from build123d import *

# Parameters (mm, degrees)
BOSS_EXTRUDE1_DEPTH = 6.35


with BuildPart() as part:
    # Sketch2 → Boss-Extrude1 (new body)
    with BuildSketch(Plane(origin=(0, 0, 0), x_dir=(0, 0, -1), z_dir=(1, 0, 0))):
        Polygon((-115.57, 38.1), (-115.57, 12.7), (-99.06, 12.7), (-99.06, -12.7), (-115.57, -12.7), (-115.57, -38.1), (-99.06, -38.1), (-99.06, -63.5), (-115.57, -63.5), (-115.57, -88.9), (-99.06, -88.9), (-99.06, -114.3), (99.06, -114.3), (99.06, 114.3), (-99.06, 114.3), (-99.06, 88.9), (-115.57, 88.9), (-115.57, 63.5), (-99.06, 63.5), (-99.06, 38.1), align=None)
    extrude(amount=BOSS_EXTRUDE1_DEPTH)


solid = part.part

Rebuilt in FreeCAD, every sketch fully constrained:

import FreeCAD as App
import Part
import Sketcher
from FreeCAD import Vector
Q = App.Units.Quantity

doc = App.newDocument("Part")
params = doc.addObject("Spreadsheet::Sheet", "Params")
for row, (alias, value) in enumerate([
    ("sketch1_width", "1 in"),
    ("sketch1_height", "7.8 in"),
    ("sketch1_height2", "0.65 in"),
    ("pad1_length", "0.25 in"),
], start=1):
    params.set(f"A{row}", alias)
    params.set(f"B{row}", "=" + value)
    params.setAlias(f"B{row}", alias)

body = doc.addObject("PartDesign::Body", "Body")

sketch1 = doc.addObject("Sketcher::SketchObject", "Sketch")
body.addObject(sketch1)
sketch1.AttachmentSupport = (doc.YZ_Plane, [""])
sketch1.MapMode = "FlatFace"
sketch1.addGeometry(Part.LineSegment(Vector(38, 116, 0), Vector(13, 116, 0)), False)
sketch1.addGeometry(Part.LineSegment(Vector(13, 116, 0), Vector(13, 99, 0)), False)
sketch1.addGeometry(Part.LineSegment(Vector(13, 99, 0), Vector(-13, 99, 0)), False)
sketch1.addGeometry(Part.LineSegment(Vector(-13, 99, 0), Vector(-13, 116, 0)), False)
sketch1.addGeometry(Part.LineSegment(Vector(-13, 116, 0), Vector(-38, 116, 0)), False)
sketch1.addGeometry(Part.LineSegment(Vector(-38, 116, 0), Vector(-38, 99, 0)), False)
sketch1.addGeometry(Part.LineSegment(Vector(-38, 99, 0), Vector(-64, 99, 0)), False)
sketch1.addGeometry(Part.LineSegment(Vector(-64, 99, 0), Vector(-64, 116, 0)), False)
sketch1.addGeometry(Part.LineSegment(Vector(-64, 116, 0), Vector(-89, 116, 0)), False)
sketch1.addGeometry(Part.LineSegment(Vector(-89, 116, 0), Vector(-89, 99, 0)), False)
sketch1.addGeometry(Part.LineSegment(Vector(-89, 99, 0), Vector(-114, 99, 0)), False)
sketch1.addGeometry(Part.LineSegment(Vector(-114, 99, 0), Vector(-114, -99, 0)), False)
sketch1.addGeometry(Part.LineSegment(Vector(-114, -99, 0), Vector(114, -99, 0)), False)
sketch1.addGeometry(Part.LineSegment(Vector(114, -99, 0), Vector(114, 99, 0)), False)
sketch1.addGeometry(Part.LineSegment(Vector(114, 99, 0), Vector(89, 99, 0)), False)
sketch1.addGeometry(Part.LineSegment(Vector(89, 99, 0), Vector(89, 116, 0)), False)
sketch1.addGeometry(Part.LineSegment(Vector(89, 116, 0), Vector(64, 116, 0)), False)
sketch1.addGeometry(Part.LineSegment(Vector(64, 116, 0), Vector(64, 99, 0)), False)
sketch1.addGeometry(Part.LineSegment(Vector(64, 99, 0), Vector(38, 99, 0)), False)
sketch1.addGeometry(Part.LineSegment(Vector(38, 99, 0), Vector(38, 116, 0)), False)
sketch1.addConstraint(Sketcher.Constraint("Coincident", 0, 2, 1, 1))
sketch1.addConstraint(Sketcher.Constraint("Coincident", 1, 2, 2, 1))
sketch1.addConstraint(Sketcher.Constraint("Coincident", 2, 2, 3, 1))
sketch1.addConstraint(Sketcher.Constraint("Coincident", 3, 2, 4, 1))
sketch1.addConstraint(Sketcher.Constraint("Coincident", 4, 2, 5, 1))
sketch1.addConstraint(Sketcher.Constraint("Coincident", 5, 2, 6, 1))
sketch1.addConstraint(Sketcher.Constraint("Coincident", 6, 2, 7, 1))
sketch1.addConstraint(Sketcher.Constraint("Coincident", 7, 2, 8, 1))
sketch1.addConstraint(Sketcher.Constraint("Coincident", 8, 2, 9, 1))
sketch1.addConstraint(Sketcher.Constraint("Coincident", 9, 2, 10, 1))
sketch1.addConstraint(Sketcher.Constraint("Coincident", 10, 2, 11, 1))
sketch1.addConstraint(Sketcher.Constraint("Coincident", 11, 2, 12, 1))
sketch1.addConstraint(Sketcher.Constraint("Coincident", 12, 2, 13, 1))
sketch1.addConstraint(Sketcher.Constraint("Coincident", 13, 2, 14, 1))
sketch1.addConstraint(Sketcher.Constraint("Coincident", 14, 2, 15, 1))
sketch1.addConstraint(Sketcher.Constraint("Coincident", 15, 2, 16, 1))
sketch1.addConstraint(Sketcher.Constraint("Coincident", 16, 2, 17, 1))
sketch1.addConstraint(Sketcher.Constraint("Coincident", 17, 2, 18, 1))
sketch1.addConstraint(Sketcher.Constraint("Coincident", 18, 2, 19, 1))
sketch1.addConstraint(Sketcher.Constraint("Coincident", 19, 2, 0, 1))
sketch1.addConstraint(Sketcher.Constraint("Horizontal", 0))
sketch1.addConstraint(Sketcher.Constraint("Vertical", 1))
sketch1.addConstraint(Sketcher.Constraint("Horizontal", 2))
sketch1.addConstraint(Sketcher.Constraint("Vertical", 3))
sketch1.addConstraint(Sketcher.Constraint("Horizontal", 4))
sketch1.addConstraint(Sketcher.Constraint("Vertical", 5))
sketch1.addConstraint(Sketcher.Constraint("Horizontal", 6))
sketch1.addConstraint(Sketcher.Constraint("Vertical", 7))
sketch1.addConstraint(Sketcher.Constraint("Horizontal", 8))
sketch1.addConstraint(Sketcher.Constraint("Vertical", 9))
sketch1.addConstraint(Sketcher.Constraint("Horizontal", 10))
sketch1.addConstraint(Sketcher.Constraint("Vertical", 11))
sketch1.addConstraint(Sketcher.Constraint("Horizontal", 12))
sketch1.addConstraint(Sketcher.Constraint("Vertical", 13))
sketch1.addConstraint(Sketcher.Constraint("Horizontal", 14))
sketch1.addConstraint(Sketcher.Constraint("Vertical", 15))
sketch1.addConstraint(Sketcher.Constraint("Horizontal", 16))
sketch1.addConstraint(Sketcher.Constraint("Vertical", 17))
sketch1.addConstraint(Sketcher.Constraint("Horizontal", 18))
sketch1.addConstraint(Sketcher.Constraint("Vertical", 19))
sketch1.addConstraint(Sketcher.Constraint("Symmetric", 10, 2, 12, 2, -1, 1))
sketch1.addConstraint(Sketcher.Constraint("Symmetric", 0, 2, 3, 2, -2))
sketch1.addConstraint(Sketcher.Constraint("Symmetric", 9, 2, 14, 2, -2))
sketch1.addConstraint(Sketcher.Constraint("Symmetric", 7, 2, 16, 2, -2))
sketch1.addConstraint(Sketcher.Constraint("Symmetric", 5, 2, 18, 2, -2))
sketch1.addConstraint(Sketcher.Constraint("Horizontal", 2, 2, 5, 2))
sketch1.addConstraint(Sketcher.Constraint("Horizontal", 4, 2, 7, 2))
sketch1.addConstraint(Sketcher.Constraint("Horizontal", 6, 2, 9, 2))
sketch1.addConstraint(Sketcher.Constraint("Equal", 0, 2))
sketch1.addConstraint(Sketcher.Constraint("Equal", 4, 6))
sketch1.addConstraint(Sketcher.Constraint("Equal", 6, 8))
sketch1.addConstraint(Sketcher.Constraint("Equal", 8, 10))
sketch1.addConstraint(Sketcher.Constraint("DistanceX", 0, 2, 0, 1, Q("1 in")))
sketch1.addConstraint(Sketcher.Constraint("DistanceY", 11, 2, 11, 1, Q("7.8 in")))
sketch1.addConstraint(Sketcher.Constraint("DistanceY", 1, 2, 1, 1, Q("0.65 in")))
sketch1.setExpression("Constraints[52]", "Params.sketch1_width")
sketch1.setExpression("Constraints[53]", "Params.sketch1_height")
sketch1.setExpression("Constraints[54]", "Params.sketch1_height2")
pad1 = doc.addObject("PartDesign::Pad", "Pad")
body.addObject(pad1)
pad1.Profile = sketch1
pad1.setExpression("Length", "Params.pad1_length")

doc.recompute()
